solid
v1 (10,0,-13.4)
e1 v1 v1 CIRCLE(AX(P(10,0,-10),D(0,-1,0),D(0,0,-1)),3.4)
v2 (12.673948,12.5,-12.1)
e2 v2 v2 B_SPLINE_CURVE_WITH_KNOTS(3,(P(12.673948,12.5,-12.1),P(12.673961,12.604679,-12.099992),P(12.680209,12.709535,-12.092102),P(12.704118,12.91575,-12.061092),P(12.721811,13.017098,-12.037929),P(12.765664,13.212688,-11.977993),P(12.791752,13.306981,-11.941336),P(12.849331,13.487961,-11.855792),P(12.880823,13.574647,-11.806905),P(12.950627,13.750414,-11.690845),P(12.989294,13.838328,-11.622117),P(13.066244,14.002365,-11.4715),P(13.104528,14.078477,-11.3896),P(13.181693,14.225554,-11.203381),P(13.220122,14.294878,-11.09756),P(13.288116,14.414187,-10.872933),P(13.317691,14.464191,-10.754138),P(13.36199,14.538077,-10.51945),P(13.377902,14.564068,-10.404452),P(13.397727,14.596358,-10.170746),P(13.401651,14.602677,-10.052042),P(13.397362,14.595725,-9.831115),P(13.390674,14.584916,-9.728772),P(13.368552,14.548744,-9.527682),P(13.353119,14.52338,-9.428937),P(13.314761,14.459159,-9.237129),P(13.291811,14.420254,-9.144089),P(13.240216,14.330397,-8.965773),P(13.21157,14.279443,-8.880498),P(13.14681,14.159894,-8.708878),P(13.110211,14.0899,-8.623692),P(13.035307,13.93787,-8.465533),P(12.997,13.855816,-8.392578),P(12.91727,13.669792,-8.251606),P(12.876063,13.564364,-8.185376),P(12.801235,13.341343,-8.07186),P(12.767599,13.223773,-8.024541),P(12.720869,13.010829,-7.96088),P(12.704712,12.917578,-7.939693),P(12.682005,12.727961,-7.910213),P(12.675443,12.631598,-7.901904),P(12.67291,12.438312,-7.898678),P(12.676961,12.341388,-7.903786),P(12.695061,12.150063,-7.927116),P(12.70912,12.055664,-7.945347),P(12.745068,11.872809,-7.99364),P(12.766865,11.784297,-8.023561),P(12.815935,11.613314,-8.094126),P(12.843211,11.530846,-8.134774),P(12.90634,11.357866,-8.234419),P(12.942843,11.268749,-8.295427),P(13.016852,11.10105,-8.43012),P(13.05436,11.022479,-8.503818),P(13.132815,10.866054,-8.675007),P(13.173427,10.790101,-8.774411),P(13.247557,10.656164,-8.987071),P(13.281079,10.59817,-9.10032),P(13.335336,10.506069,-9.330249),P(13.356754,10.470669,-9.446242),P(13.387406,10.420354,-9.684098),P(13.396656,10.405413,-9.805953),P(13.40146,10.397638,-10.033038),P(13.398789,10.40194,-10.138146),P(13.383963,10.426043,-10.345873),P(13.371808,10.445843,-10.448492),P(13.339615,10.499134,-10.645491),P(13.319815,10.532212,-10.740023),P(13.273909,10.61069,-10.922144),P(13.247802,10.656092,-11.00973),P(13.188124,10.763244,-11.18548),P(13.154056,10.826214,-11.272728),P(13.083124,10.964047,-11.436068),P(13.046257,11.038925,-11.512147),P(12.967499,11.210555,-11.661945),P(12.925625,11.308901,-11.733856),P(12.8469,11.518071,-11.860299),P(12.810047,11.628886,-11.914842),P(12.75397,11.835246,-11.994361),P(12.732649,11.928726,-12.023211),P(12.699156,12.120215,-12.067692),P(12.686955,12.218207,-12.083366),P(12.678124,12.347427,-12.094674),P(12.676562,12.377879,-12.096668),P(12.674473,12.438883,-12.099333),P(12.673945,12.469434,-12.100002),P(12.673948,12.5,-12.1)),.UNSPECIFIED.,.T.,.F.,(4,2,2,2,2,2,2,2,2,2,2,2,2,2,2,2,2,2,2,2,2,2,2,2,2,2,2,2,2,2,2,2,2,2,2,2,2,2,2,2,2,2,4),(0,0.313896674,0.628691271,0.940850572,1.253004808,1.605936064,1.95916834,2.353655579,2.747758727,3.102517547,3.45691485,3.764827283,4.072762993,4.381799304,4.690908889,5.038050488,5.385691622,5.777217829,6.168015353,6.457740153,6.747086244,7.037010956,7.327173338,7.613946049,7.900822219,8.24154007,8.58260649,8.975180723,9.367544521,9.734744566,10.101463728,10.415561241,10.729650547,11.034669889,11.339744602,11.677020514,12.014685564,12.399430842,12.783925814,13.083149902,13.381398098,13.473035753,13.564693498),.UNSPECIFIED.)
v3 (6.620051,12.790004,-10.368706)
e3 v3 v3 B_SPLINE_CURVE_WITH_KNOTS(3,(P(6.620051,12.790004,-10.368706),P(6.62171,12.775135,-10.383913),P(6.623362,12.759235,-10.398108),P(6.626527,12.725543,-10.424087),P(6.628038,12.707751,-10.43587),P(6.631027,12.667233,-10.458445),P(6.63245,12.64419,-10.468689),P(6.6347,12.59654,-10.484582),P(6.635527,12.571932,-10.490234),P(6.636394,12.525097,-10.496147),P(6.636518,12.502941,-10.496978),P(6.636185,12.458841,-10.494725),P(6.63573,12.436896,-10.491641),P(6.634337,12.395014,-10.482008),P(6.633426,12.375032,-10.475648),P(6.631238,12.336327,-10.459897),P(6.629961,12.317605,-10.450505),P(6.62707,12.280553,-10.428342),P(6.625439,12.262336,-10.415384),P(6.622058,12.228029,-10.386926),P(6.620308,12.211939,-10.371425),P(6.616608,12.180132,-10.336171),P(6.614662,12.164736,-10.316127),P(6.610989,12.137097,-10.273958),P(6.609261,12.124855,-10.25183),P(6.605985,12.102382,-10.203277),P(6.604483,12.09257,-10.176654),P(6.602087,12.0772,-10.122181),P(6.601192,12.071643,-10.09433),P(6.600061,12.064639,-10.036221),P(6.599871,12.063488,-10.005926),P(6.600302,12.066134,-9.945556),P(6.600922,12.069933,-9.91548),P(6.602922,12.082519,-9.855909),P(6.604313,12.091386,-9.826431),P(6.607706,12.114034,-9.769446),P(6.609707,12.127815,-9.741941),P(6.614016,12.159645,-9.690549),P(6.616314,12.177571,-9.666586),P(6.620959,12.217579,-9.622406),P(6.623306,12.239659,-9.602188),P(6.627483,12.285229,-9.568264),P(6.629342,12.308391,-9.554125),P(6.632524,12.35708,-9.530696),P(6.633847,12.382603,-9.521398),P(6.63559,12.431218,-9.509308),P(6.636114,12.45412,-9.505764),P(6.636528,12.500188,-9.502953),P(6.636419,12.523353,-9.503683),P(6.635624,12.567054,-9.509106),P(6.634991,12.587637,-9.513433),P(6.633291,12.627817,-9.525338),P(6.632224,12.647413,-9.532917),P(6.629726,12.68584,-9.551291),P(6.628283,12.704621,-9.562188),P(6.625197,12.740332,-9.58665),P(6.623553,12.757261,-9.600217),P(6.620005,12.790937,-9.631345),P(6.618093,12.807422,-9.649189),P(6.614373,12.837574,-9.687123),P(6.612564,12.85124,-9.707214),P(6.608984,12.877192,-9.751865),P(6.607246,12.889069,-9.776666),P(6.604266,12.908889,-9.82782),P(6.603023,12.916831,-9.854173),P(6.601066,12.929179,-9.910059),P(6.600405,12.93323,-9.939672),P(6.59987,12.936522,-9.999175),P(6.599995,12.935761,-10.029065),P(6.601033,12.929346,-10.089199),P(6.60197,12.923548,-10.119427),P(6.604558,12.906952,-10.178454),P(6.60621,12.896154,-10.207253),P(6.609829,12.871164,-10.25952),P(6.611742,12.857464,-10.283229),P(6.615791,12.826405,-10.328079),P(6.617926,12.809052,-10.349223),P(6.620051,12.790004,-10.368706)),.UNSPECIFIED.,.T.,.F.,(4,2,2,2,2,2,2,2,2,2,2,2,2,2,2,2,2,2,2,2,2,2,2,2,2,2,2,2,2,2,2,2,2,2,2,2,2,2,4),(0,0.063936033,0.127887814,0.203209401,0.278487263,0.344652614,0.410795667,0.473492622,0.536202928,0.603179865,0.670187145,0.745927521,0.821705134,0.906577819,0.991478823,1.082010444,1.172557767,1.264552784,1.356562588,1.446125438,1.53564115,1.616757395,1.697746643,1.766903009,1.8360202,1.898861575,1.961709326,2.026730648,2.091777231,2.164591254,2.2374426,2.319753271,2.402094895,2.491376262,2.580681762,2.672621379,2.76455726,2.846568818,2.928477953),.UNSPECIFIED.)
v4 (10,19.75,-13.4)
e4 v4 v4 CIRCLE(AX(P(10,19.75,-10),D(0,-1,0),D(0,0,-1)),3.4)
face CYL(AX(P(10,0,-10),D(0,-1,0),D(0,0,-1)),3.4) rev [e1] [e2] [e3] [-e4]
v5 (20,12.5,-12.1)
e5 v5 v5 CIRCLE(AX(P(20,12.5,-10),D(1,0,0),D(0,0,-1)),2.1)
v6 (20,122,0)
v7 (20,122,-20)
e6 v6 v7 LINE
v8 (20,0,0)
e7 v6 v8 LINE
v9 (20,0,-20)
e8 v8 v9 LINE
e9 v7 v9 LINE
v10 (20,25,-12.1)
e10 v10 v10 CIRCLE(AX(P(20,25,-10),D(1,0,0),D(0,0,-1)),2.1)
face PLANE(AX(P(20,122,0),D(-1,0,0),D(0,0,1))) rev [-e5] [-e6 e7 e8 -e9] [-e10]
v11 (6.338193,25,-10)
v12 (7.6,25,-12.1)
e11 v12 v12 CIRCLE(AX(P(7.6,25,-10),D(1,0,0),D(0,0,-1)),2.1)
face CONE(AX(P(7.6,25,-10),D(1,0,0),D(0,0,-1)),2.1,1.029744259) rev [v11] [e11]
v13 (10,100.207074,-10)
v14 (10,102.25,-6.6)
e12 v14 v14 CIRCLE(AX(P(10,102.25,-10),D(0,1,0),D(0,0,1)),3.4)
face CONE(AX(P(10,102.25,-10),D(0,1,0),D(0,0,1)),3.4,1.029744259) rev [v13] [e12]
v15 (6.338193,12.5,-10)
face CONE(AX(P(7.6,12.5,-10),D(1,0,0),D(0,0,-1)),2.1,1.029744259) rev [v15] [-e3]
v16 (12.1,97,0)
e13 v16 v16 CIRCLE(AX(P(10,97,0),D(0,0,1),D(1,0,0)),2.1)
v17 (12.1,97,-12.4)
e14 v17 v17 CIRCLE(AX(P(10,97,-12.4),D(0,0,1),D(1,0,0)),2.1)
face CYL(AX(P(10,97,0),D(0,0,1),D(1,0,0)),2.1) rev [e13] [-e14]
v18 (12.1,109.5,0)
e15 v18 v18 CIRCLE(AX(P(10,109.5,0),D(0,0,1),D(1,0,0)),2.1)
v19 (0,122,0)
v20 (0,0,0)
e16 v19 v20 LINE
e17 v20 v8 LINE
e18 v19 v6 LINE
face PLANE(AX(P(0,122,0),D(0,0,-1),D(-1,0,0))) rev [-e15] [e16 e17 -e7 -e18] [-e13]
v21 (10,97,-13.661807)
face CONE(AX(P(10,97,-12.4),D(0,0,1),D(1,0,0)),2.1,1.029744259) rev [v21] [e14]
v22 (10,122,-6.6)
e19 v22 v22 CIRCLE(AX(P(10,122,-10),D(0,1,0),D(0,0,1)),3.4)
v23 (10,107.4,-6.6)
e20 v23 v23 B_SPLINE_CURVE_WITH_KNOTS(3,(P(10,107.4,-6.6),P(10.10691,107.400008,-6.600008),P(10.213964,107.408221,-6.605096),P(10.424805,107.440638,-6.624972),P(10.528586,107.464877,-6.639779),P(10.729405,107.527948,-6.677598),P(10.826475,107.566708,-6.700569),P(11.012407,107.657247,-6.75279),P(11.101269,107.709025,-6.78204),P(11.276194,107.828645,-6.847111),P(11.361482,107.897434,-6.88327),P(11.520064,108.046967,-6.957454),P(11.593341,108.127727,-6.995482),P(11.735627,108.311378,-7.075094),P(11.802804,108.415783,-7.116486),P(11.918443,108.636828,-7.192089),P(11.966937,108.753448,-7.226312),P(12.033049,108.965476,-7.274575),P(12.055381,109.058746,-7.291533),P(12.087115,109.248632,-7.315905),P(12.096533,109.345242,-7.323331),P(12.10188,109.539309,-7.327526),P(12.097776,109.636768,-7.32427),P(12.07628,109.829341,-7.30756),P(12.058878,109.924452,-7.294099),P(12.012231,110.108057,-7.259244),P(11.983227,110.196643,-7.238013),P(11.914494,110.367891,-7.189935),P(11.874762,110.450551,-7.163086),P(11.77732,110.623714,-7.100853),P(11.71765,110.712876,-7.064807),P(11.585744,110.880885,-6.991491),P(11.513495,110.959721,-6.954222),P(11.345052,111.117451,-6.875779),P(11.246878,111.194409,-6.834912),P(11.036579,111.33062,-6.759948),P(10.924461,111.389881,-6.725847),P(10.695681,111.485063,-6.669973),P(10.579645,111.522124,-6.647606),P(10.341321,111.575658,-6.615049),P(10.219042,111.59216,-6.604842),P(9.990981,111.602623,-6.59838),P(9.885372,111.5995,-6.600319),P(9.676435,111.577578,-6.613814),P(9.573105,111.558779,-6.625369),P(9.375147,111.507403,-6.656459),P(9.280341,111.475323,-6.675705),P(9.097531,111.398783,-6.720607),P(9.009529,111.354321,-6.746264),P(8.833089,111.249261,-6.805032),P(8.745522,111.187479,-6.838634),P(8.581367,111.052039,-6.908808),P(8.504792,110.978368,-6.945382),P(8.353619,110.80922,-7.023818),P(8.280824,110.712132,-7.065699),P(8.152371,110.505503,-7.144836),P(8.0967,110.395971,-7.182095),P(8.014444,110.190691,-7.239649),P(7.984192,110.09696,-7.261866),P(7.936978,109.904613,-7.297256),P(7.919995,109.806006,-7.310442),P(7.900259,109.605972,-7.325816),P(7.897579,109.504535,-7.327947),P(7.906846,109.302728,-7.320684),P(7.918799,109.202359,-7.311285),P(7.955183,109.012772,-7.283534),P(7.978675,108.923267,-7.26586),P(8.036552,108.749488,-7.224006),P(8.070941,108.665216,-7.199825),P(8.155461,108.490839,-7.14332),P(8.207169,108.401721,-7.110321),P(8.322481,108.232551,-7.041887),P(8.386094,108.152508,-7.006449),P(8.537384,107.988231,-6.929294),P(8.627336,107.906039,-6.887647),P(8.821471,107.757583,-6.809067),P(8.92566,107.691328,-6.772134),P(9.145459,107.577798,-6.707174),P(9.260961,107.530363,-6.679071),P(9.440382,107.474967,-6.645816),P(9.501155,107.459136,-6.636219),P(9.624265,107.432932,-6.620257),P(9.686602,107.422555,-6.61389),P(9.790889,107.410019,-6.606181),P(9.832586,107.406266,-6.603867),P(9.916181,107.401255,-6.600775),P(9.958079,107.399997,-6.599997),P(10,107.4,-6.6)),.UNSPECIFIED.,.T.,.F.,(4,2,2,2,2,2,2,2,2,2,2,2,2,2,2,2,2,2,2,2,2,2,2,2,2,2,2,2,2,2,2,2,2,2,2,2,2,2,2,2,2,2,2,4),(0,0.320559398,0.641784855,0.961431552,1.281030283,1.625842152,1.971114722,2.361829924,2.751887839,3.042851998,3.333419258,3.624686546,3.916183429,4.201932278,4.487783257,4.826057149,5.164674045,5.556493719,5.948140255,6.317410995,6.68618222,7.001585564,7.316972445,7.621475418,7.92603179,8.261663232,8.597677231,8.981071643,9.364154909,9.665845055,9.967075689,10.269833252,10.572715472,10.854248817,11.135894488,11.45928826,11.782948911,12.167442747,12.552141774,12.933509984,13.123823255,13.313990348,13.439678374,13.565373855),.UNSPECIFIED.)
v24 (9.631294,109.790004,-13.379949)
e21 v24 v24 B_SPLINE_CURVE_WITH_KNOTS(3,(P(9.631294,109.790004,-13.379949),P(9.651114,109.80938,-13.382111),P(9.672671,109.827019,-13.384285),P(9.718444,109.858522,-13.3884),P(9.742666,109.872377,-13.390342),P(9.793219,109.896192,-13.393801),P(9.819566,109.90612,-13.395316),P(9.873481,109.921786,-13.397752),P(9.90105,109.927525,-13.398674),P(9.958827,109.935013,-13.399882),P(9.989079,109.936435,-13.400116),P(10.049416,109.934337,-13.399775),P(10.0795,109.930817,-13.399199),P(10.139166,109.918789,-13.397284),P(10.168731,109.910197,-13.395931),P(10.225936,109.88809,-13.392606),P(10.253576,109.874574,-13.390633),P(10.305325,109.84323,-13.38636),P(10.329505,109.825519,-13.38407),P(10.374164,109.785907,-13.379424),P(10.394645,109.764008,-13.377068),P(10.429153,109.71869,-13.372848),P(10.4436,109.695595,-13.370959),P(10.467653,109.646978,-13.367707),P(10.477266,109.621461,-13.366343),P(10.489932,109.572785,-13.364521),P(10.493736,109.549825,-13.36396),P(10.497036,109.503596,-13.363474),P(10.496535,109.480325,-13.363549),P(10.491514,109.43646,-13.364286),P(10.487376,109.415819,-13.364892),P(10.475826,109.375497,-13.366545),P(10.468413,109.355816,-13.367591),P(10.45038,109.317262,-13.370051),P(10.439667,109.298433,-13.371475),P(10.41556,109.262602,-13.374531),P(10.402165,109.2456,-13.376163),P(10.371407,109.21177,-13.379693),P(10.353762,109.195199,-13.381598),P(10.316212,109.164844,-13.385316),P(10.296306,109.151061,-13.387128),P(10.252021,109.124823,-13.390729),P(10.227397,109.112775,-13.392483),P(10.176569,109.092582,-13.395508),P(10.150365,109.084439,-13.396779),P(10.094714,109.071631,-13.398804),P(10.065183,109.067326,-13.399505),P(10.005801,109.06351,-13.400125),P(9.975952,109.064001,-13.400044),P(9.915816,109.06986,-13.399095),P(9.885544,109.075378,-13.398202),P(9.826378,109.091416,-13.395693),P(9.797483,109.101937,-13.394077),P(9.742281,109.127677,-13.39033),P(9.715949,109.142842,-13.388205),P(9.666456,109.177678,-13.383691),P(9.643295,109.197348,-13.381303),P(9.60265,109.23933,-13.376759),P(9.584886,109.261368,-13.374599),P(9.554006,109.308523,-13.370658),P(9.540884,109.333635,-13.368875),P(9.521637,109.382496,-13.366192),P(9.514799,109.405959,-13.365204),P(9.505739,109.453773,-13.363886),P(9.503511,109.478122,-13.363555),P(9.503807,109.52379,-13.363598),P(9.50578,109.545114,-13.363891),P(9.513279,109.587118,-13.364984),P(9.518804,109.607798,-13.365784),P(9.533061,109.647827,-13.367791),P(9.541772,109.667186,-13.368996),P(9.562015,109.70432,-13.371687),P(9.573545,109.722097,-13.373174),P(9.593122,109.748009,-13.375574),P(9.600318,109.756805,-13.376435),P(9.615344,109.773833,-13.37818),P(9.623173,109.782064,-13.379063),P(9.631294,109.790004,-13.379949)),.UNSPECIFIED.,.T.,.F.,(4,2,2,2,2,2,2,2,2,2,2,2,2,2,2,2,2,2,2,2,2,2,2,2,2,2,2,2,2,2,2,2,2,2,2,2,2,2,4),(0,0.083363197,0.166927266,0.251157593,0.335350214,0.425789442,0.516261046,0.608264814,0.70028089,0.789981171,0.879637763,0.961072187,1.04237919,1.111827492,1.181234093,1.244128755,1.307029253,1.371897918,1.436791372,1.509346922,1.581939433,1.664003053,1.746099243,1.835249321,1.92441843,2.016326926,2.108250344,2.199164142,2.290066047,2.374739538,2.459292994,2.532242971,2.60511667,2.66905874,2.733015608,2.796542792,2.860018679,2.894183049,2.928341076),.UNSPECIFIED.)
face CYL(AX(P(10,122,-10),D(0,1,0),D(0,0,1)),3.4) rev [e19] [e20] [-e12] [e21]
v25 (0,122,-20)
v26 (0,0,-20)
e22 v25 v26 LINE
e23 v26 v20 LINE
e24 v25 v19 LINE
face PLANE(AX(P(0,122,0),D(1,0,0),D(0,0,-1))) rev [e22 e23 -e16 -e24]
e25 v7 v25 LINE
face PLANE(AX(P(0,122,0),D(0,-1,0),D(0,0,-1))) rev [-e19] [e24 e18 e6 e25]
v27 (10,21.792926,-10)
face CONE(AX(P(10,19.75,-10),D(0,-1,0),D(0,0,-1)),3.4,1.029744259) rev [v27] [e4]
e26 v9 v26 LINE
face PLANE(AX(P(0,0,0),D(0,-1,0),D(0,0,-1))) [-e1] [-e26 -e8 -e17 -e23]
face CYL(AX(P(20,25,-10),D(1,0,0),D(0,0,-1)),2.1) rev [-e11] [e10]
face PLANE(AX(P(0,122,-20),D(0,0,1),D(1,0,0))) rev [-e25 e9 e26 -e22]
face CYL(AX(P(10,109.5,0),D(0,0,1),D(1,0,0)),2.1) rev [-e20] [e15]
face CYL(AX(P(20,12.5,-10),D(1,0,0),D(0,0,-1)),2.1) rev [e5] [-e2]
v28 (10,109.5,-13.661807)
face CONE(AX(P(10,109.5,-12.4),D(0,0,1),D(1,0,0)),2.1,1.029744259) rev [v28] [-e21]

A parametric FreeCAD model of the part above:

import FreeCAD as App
import Part
import Sketcher

V = App.Vector
Q = App.Units.Quantity


def add_polygon(sketch, points):
    """Adds a closed chain of lines whose ends are joined by coincident constraints."""
    first, n = sketch.GeometryCount, len(points)
    for a, b in zip(points, points[1:] + points[:1]):
        sketch.addGeometry(Part.LineSegment(App.Vector(*a, 0), App.Vector(*b, 0)), False)
    for i in range(n):
        sketch.addConstraint(Sketcher.Constraint("Coincident", first + i, 2, first + (i + 1) % n, 1))

doc = App.newDocument("Part")
params = doc.addObject("Spreadsheet::Sheet", "Params")
for row, (alias, value) in enumerate([
    ("sketch1_width", "20 mm"),
    ("pad1_length", "122 mm"),
    ("sketch2_height", "3.4 mm"),
    ("sketch2_width", "19.75 mm"),
    ("groove_angle", "360 deg"),
    ("sketch3_diameter", "4.2 mm"),
    ("hole_diameter", "4.2 mm"),
    ("hole_depth", "12.4 mm"),
    ("sketch4_diameter", "4.2 mm"),
    ("hole2_diameter", "4.2 mm"),
    ("hole2_depth", "12.4 mm"),
], start=1):
    params.set(f"A{row}", alias)
    params.set(f"B{row}", "=" + value)
    params.setAlias(f"B{row}", alias)

body = doc.addObject("PartDesign::Body", "Body")

# Sketch on XZ plane
sketch1 = doc.addObject("Sketcher::SketchObject", "Sketch")
body.addObject(sketch1)
sketch1.AttachmentSupport = (doc.XZ_Plane, [""])
sketch1.MapMode = "FlatFace"
add_polygon(sketch1, [(0, -20), (0, 0), (20, 0), (20, -20)])  # lines 0-3
sketch1.addConstraint(Sketcher.Constraint("Vertical", 0))
sketch1.addConstraint(Sketcher.Constraint("Horizontal", 1))
sketch1.addConstraint(Sketcher.Constraint("Vertical", 2))
sketch1.addConstraint(Sketcher.Constraint("Horizontal", 3))
sketch1.addConstraint(Sketcher.Constraint("Coincident", 0, 2, -1, 1))
sketch1.addConstraint(Sketcher.Constraint("Equal", 3, 0))
sketch1.addConstraint(Sketcher.Constraint("DistanceX", 1, 1, 1, 2, 20.0))
sketch1.setExpression("Constraints[10]", "Params.sketch1_width")
pad1 = doc.addObject("PartDesign::Pad", "Pad")
body.addObject(pad1)
pad1.Profile = sketch1
pad1.setExpression("Length", "Params.pad1_length")
pad1.Reversed = True

# Sketch on YZ plane
sketch2 = doc.addObject("Sketcher::SketchObject", "Sketch001")
body.addObject(sketch2)
sketch2.AttachmentSupport = (doc.YZ_Plane, [""])
sketch2.MapMode = "FlatFace"
sketch2.AttachmentOffset = App.Placement(V(0, 0, 10), App.Rotation())
add_polygon(sketch2, [(100.2, -10), (122, -10), (122, -6.6), (102.2, -6.6)])  # lines 0-3
sketch2.addGeometry(Part.LineSegment(V(122, -10, 0), V(100.2, -10, 0)), True)  # axis
sketch2.addConstraint(Sketcher.Constraint("Horizontal", 0))
sketch2.addConstraint(Sketcher.Constraint("Vertical", 1))
sketch2.addConstraint(Sketcher.Constraint("Horizontal", 2))
sketch2.addConstraint(Sketcher.Constraint("Horizontal", 4))
sketch2.addConstraint(Sketcher.Constraint("Coincident", 4, 1, 0, 2))
sketch2.addConstraint(Sketcher.Constraint("Equal", 0, 4))
sketch2.addConstraint(Sketcher.Constraint("Angle", 3, Q("-121 deg")))
sketch2.addConstraint(Sketcher.Constraint("DistanceY", 1, 1, 1, 2, 3.4))
sketch2.addConstraint(Sketcher.Constraint("DistanceX", -1, 1, 0, 2, 122.0))
sketch2.addConstraint(Sketcher.Constraint("DistanceY", 0, 2, -1, 1, 10.0))
sketch2.addConstraint(Sketcher.Constraint("DistanceX", 2, 2, 2, 1, 19.75))
sketch2.setExpression("Constraints[11]", "Params.sketch2_height")
sketch2.setExpression("Constraints[14]", "Params.sketch2_width")
groove = doc.addObject("PartDesign::Groove", "Groove")
body.addObject(groove)
groove.Profile = sketch2
groove.ReferenceAxis = (sketch2, ["Axis0"])
groove.setExpression("Angle", "Params.groove_angle")
doc.recompute()

datumplane = doc.addObject("PartDesign::Plane", "DatumPlane")
body.addObject(datumplane)
datumplane.AttachmentSupport = (doc.XZ_Plane, [""])
datumplane.MapMode = "FlatFace"
datumplane.AttachmentOffset = App.Placement(V(0, 0, -61), App.Rotation())
mirrored = doc.addObject("PartDesign::Mirrored", "Mirrored")
body.addObject(mirrored)
mirrored.Originals = [groove]
mirrored.MirrorPlane = (datumplane, [""])
body.Tip = mirrored

# Sketch on XY plane
sketch3 = doc.addObject("Sketcher::SketchObject", "Sketch002")
body.addObject(sketch3)
sketch3.AttachmentSupport = (doc.XY_Plane, [""])
sketch3.MapMode = "FlatFace"
sketch3.addGeometry(Part.Circle(V(10, 97, 0), V(0, 0, 1), 2.1), False)
sketch3.addGeometry(Part.Circle(V(10, 109.5, 0), V(0, 0, 1), 2.1), False)
sketch3.addConstraint(Sketcher.Constraint("Equal", 0, 1))
sketch3.addConstraint(Sketcher.Constraint("Vertical", 0, 3, 1, 3))
sketch3.addConstraint(Sketcher.Constraint("Diameter", 0, 4.2))
sketch3.addConstraint(Sketcher.Constraint("DistanceX", -1, 1, 0, 3, 10.0))
sketch3.addConstraint(Sketcher.Constraint("DistanceY", -1, 1, 0, 3, 97.0))
sketch3.addConstraint(Sketcher.Constraint("DistanceY", -1, 1, 1, 3, 109.5))
sketch3.setExpression("Constraints[2]", "Params.sketch3_diameter")
doc.recompute()
hole = doc.addObject("PartDesign::Hole", "Hole")
body.addObject(hole)
hole.Profile = sketch3
hole.ThreadType = "None"
hole.setExpression("Diameter", "Params.hole_diameter")
hole.DepthType = "Dimension"
hole.setExpression("Depth", "Params.hole_depth")
hole.DrillPoint = "Angled"
hole.DrillPointAngle = 118

# Sketch on YZ plane
sketch4 = doc.addObject("Sketcher::SketchObject", "Sketch003")
body.addObject(sketch4)
sketch4.AttachmentSupport = (doc.YZ_Plane, [""])
sketch4.MapMode = "FlatFace"
sketch4.AttachmentOffset = App.Placement(V(0, 0, 20), App.Rotation())
sketch4.addGeometry(Part.Circle(V(12.5, -10, 0), V(0, 0, 1), 2.1), False)
sketch4.addGeometry(Part.Circle(V(25, -10, 0), V(0, 0, 1), 2.1), False)
sketch4.addConstraint(Sketcher.Constraint("Equal", 0, 1))
sketch4.addConstraint(Sketcher.Constraint("Horizontal", 0, 3, 1, 3))
sketch4.addConstraint(Sketcher.Constraint("Diameter", 0, 4.2))
sketch4.addConstraint(Sketcher.Constraint("DistanceY", 0, 3, -1, 1, 10.0))
sketch4.addConstraint(Sketcher.Constraint("DistanceX", -1, 1, 1, 3, 25.0))
sketch4.addConstraint(Sketcher.Constraint("DistanceX", -1, 1, 0, 3, 12.5))
sketch4.setExpression("Constraints[2]", "Params.sketch4_diameter")
doc.recompute()
hole2 = doc.addObject("PartDesign::Hole", "Hole001")
body.addObject(hole2)
hole2.Profile = sketch4
hole2.ThreadType = "None"
hole2.setExpression("Diameter", "Params.hole2_diameter")
hole2.DepthType = "Dimension"
hole2.setExpression("Depth", "Params.hole2_depth")
hole2.DrillPoint = "Angled"
hole2.DrillPointAngle = 118

doc.recompute()
